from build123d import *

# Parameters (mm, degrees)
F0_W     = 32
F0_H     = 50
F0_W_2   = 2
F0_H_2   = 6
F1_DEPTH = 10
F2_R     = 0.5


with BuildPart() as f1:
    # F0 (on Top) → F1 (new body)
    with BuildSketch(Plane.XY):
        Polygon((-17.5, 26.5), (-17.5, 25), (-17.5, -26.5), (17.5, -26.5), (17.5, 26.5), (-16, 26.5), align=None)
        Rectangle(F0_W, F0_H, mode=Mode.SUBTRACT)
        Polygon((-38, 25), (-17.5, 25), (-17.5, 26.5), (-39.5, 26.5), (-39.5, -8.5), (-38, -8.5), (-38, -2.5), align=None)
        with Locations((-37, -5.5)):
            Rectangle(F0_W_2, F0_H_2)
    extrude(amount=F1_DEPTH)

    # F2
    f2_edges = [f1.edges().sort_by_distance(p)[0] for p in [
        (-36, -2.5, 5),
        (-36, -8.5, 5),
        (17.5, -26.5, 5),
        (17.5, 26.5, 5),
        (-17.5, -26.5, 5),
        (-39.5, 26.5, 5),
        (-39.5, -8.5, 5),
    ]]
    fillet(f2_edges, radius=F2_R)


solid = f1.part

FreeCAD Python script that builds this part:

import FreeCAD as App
import Part
import Sketcher


def edges_at(feature, points):
    """Names of the edges that pass closest to the given points."""
    edges = feature.Shape.Edges
    near = lambda p: min(range(len(edges)), key=lambda i: edges[i].distToShape(Part.Vertex(*p))[0])
    return sorted({f"Edge{near(p) + 1}" for p in points})


def add_polygon(sketch, points):
    """Adds a closed chain of lines whose ends are joined by coincident constraints."""
    first, n = sketch.GeometryCount, len(points)
    for a, b in zip(points, points[1:] + points[:1]):
        sketch.addGeometry(Part.LineSegment(App.Vector(*a, 0), App.Vector(*b, 0)), False)
    for i in range(n):
        sketch.addConstraint(Sketcher.Constraint("Coincident", first + i, 2, first + (i + 1) % n, 1))

doc = App.newDocument("Part")
body = doc.addObject("PartDesign::Body", "Body")

sketch1 = doc.addObject("Sketcher::SketchObject", "Sketch")
body.addObject(sketch1)
sketch1.AttachmentSupport = (doc.XY_Plane, [""])
sketch1.MapMode = "FlatFace"
add_polygon(sketch1, [(-17.5, 25), (-17.5, -26.5), (17.5, -26.5), (17.5, 26.5), (-39.5, 26.5), (-39.5, -8.5), (-36, -8.5), (-36, -2.5), (-38, -2.5), (-38, 25)])
add_polygon(sketch1, [(16, -25), (-16, -25), (-16, 25), (16, 25)])
sketch1.addConstraint(Sketcher.Constraint("Vertical", 0))
sketch1.addConstraint(Sketcher.Constraint("Horizontal", 1))
sketch1.addConstraint(Sketcher.Constraint("Vertical", 2))
sketch1.addConstraint(Sketcher.Constraint("Horizontal", 3))
sketch1.addConstraint(Sketcher.Constraint("Vertical", 4))
sketch1.addConstraint(Sketcher.Constraint("Horizontal", 5))
sketch1.addConstraint(Sketcher.Constraint("Vertical", 6))
sketch1.addConstraint(Sketcher.Constraint("Horizontal", 7))
sketch1.addConstraint(Sketcher.Constraint("Vertical", 8))
sketch1.addConstraint(Sketcher.Constraint("Horizontal", 9))
sketch1.addConstraint(Sketcher.Constraint("Horizontal", 10))
sketch1.addConstraint(Sketcher.Constraint("Vertical", 11))
sketch1.addConstraint(Sketcher.Constraint("Horizontal", 12))
sketch1.addConstraint(Sketcher.Constraint("Vertical", 13))
sketch1.addConstraint(Sketcher.Constraint("Symmetric", 0, 2, 2, 2, -1, 1))
sketch1.addConstraint(Sketcher.Constraint("Symmetric", 10, 2, 12, 2, -1, 1))
sketch1.addConstraint(Sketcher.Constraint("Horizontal", 9, 2, 11, 2))
sketch1.addConstraint(Sketcher.Constraint("Equal", 1, 4))
sketch1.addConstraint(Sketcher.Constraint("DistanceX", 1, 1, 1, 2, 35.0))
sketch1.addConstraint(Sketcher.Constraint("DistanceX", 3, 2, 3, 1, 57.0))
sketch1.addConstraint(Sketcher.Constraint("DistanceX", 7, 2, 7, 1, 2.0))
sketch1.addConstraint(Sketcher.Constraint("DistanceX", 10, 2, 10, 1, 32.0))
sketch1.addConstraint(Sketcher.Constraint("DistanceY", 2, 1, 2, 2, 53.0))
sketch1.addConstraint(Sketcher.Constraint("DistanceY", 6, 1, 6, 2, 6.0))
sketch1.addConstraint(Sketcher.Constraint("DistanceY", 11, 1, 11, 2, 50.0))
sketch1.addConstraint(Sketcher.Constraint("DistanceX", 5, 1, 5, 2, 3.5))
pad1 = doc.addObject("PartDesign::Pad", "Pad")
body.addObject(pad1)
pad1.Profile = sketch1
pad1.Length = 10
doc.recompute()

fillet = doc.addObject("PartDesign::Fillet", "Fillet")
body.addObject(fillet)
fillet.Base = (pad1, edges_at(pad1, [
    (-36, -2.5, 5),
    (-36, -8.5, 5),
    (17.5, -26.5, 5),
    (17.5, 26.5, 5),
    (-17.5, -26.5, 5),
    (-39.5, 26.5, 5),
    (-39.5, -8.5, 5),
]))
fillet.Radius = 0.5

doc.recompute()
